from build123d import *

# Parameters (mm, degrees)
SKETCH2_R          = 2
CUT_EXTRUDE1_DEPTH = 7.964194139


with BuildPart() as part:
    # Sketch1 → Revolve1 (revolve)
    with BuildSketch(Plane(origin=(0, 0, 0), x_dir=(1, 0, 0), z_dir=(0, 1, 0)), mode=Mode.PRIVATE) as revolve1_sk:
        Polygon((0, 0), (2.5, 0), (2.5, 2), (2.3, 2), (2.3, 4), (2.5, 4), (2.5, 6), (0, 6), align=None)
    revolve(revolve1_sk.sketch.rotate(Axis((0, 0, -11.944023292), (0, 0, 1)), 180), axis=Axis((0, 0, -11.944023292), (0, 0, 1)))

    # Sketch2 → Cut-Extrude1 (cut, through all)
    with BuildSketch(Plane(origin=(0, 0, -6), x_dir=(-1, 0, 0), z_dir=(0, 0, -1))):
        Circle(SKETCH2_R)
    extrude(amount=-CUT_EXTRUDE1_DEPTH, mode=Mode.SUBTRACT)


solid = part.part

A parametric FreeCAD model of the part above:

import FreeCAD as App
import Part
import Sketcher
from FreeCAD import Vector
Q = App.Units.Quantity


def add_polygon(sketch, points):
    """Adds a closed chain of lines whose ends are joined by coincident constraints."""
    first, n = sketch.GeometryCount, len(points)
    for a, b in zip(points, points[1:] + points[:1]):
        sketch.addGeometry(Part.LineSegment(App.Vector(*a, 0), App.Vector(*b, 0)), False)
    for i in range(n):
        sketch.addConstraint(Sketcher.Constraint("Coincident", first + i, 2, first + (i + 1) % n, 1))

doc = App.newDocument("Part")
body = doc.addObject("PartDesign::Body", "Body")

sketch1 = doc.addObject("Sketcher::SketchObject", "Sketch")
body.addObject(sketch1)
sketch1.AttachmentSupport = (doc.XZ_Plane, [""])
sketch1.MapMode = "FlatFace"
add_polygon(sketch1, [(0, 0), (2.5, 0), (2.5, -2), (2.3, -2), (2.3, -4), (2.5, -4), (2.5, -6), (0, -6)])
sketch1.addConstraint(Sketcher.Constraint("Horizontal", 0))
sketch1.addConstraint(Sketcher.Constraint("Vertical", 1))
sketch1.addConstraint(Sketcher.Constraint("Horizontal", 2))
sketch1.addConstraint(Sketcher.Constraint("Vertical", 3))
sketch1.addConstraint(Sketcher.Constraint("Horizontal", 4))
sketch1.addConstraint(Sketcher.Constraint("Vertical", 5))
sketch1.addConstraint(Sketcher.Constraint("Horizontal", 6))
sketch1.addConstraint(Sketcher.Constraint("Vertical", 7))
sketch1.addConstraint(Sketcher.Constraint("Coincident", 7, 2, -1, 1))
sketch1.addConstraint(Sketcher.Constraint("Vertical", 1, 2, 4, 2))
sketch1.addConstraint(Sketcher.Constraint("Equal", 1, 3))
sketch1.addConstraint(Sketcher.Constraint("Equal", 3, 5))
sketch1.addConstraint(Sketcher.Constraint("DistanceY", 1, 2, 1, 1, Q("2 mm")))
sketch1.addConstraint(Sketcher.Constraint("DistanceX", 0, 1, 0, 2, Q("2.5 mm")))
sketch1.addConstraint(Sketcher.Constraint("DistanceX", 2, 2, 2, 1, Q("0.2 mm")))
revolution = doc.addObject("PartDesign::Revolution", "Revolution")
body.addObject(revolution)
revolution.Profile = sketch1
revolution.ReferenceAxis = (sketch1, ["V_Axis"])
revolution.Angle = 360

sketch2 = doc.addObject("Sketcher::SketchObject", "Sketch001")
body.addObject(sketch2)
sketch2.AttachmentSupport = (doc.XY_Plane, [""])
sketch2.MapMode = "FlatFace"
sketch2.AttachmentOffset = App.Placement(Vector(0, 0, -6), App.Rotation())
sketch2.addGeometry(Part.Circle(Vector(0, 0, 0), Vector(0, 0, 1), 2), False)
sketch2.addConstraint(Sketcher.Constraint("Coincident", 0, 3, -1, 1))
sketch2.addConstraint(Sketcher.Constraint("Diameter", 0, Q("4 mm")))
pocket1 = doc.addObject("PartDesign::Pocket", "Pocket")
body.addObject(pocket1)
pocket1.Profile = sketch2
pocket1.Type = "ThroughAll"
pocket1.Reversed = True

doc.recompute()
